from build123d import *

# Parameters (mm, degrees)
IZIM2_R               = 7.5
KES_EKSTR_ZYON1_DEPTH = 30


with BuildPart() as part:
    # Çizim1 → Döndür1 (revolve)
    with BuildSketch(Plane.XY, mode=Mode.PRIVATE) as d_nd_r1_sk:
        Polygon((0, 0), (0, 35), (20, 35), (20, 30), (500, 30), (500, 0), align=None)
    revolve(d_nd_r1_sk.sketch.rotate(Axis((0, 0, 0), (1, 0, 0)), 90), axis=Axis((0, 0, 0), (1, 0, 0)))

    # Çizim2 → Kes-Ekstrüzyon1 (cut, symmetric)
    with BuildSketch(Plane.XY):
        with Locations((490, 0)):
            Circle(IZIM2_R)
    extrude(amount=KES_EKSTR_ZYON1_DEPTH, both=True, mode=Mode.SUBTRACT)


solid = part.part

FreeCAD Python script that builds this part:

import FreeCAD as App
import Part
import Sketcher
from FreeCAD import Vector

doc = App.newDocument("Part")
body = doc.addObject("PartDesign::Body", "Body")

sketch1 = doc.addObject("Sketcher::SketchObject", "Sketch")
body.addObject(sketch1)
sketch1.AttachmentSupport = (doc.XY_Plane, [""])
sketch1.MapMode = "FlatFace"
sketch1.addGeometry([
    Part.LineSegment(Vector(0, 35, 0), Vector(0, 0, 0)),
    Part.LineSegment(Vector(0, 0, 0), Vector(500, 0, 0)),
    Part.LineSegment(Vector(500, 0, 0), Vector(500, 30, 0)),
    Part.LineSegment(Vector(500, 30, 0), Vector(20, 30, 0)),
    Part.LineSegment(Vector(20, 30, 0), Vector(20, 35, 0)),
    Part.LineSegment(Vector(20, 35, 0), Vector(0, 35, 0)),
], False)
sketch1.addConstraint([
    Sketcher.Constraint("Coincident", 0, 2, 1, 1),
    Sketcher.Constraint("Coincident", 1, 2, 2, 1),
    Sketcher.Constraint("Coincident", 2, 2, 3, 1),
    Sketcher.Constraint("Coincident", 3, 2, 4, 1),
    Sketcher.Constraint("Coincident", 4, 2, 5, 1),
    Sketcher.Constraint("Coincident", 5, 2, 0, 1),
    Sketcher.Constraint("Vertical", 0),
    Sketcher.Constraint("Horizontal", 1),
    Sketcher.Constraint("Vertical", 2),
    Sketcher.Constraint("Horizontal", 3),
    Sketcher.Constraint("Vertical", 4),
    Sketcher.Constraint("Horizontal", 5),
    Sketcher.Constraint("Coincident", 0, 2, -1, 1),
    Sketcher.Constraint("DistanceX", 1, 1, 1, 2, 500.0),
    Sketcher.Constraint("DistanceX", 3, 2, 3, 1, 480.0),
    Sketcher.Constraint("DistanceY", 0, 2, 0, 1, 35.0),
    Sketcher.Constraint("DistanceY", 2, 1, 2, 2, 30.0),
])
revolution = doc.addObject("PartDesign::Revolution", "Revolution")
body.addObject(revolution)
revolution.Profile = sketch1
revolution.ReferenceAxis = (sketch1, ["H_Axis"])
revolution.Angle = 360

sketch2 = doc.addObject("Sketcher::SketchObject", "Sketch001")
body.addObject(sketch2)
sketch2.AttachmentSupport = (doc.XY_Plane, [""])
sketch2.MapMode = "FlatFace"
sketch2.addGeometry(Part.Circle(Vector(490, 0, 0), Vector(0, 0, 1), 7.5), False)
sketch2.addConstraint([
    Sketcher.Constraint("PointOnObject", 0, 3, -1),
    Sketcher.Constraint("Diameter", 0, 15.0),
    Sketcher.Constraint("DistanceX", -1, 1, 0, 3, 490.0),
])
pocket1 = doc.addObject("PartDesign::Pocket", "Pocket")
body.addObject(pocket1)
pocket1.Profile = sketch2
pocket1.Length = 60
pocket1.Midplane = True

doc.recompute()
